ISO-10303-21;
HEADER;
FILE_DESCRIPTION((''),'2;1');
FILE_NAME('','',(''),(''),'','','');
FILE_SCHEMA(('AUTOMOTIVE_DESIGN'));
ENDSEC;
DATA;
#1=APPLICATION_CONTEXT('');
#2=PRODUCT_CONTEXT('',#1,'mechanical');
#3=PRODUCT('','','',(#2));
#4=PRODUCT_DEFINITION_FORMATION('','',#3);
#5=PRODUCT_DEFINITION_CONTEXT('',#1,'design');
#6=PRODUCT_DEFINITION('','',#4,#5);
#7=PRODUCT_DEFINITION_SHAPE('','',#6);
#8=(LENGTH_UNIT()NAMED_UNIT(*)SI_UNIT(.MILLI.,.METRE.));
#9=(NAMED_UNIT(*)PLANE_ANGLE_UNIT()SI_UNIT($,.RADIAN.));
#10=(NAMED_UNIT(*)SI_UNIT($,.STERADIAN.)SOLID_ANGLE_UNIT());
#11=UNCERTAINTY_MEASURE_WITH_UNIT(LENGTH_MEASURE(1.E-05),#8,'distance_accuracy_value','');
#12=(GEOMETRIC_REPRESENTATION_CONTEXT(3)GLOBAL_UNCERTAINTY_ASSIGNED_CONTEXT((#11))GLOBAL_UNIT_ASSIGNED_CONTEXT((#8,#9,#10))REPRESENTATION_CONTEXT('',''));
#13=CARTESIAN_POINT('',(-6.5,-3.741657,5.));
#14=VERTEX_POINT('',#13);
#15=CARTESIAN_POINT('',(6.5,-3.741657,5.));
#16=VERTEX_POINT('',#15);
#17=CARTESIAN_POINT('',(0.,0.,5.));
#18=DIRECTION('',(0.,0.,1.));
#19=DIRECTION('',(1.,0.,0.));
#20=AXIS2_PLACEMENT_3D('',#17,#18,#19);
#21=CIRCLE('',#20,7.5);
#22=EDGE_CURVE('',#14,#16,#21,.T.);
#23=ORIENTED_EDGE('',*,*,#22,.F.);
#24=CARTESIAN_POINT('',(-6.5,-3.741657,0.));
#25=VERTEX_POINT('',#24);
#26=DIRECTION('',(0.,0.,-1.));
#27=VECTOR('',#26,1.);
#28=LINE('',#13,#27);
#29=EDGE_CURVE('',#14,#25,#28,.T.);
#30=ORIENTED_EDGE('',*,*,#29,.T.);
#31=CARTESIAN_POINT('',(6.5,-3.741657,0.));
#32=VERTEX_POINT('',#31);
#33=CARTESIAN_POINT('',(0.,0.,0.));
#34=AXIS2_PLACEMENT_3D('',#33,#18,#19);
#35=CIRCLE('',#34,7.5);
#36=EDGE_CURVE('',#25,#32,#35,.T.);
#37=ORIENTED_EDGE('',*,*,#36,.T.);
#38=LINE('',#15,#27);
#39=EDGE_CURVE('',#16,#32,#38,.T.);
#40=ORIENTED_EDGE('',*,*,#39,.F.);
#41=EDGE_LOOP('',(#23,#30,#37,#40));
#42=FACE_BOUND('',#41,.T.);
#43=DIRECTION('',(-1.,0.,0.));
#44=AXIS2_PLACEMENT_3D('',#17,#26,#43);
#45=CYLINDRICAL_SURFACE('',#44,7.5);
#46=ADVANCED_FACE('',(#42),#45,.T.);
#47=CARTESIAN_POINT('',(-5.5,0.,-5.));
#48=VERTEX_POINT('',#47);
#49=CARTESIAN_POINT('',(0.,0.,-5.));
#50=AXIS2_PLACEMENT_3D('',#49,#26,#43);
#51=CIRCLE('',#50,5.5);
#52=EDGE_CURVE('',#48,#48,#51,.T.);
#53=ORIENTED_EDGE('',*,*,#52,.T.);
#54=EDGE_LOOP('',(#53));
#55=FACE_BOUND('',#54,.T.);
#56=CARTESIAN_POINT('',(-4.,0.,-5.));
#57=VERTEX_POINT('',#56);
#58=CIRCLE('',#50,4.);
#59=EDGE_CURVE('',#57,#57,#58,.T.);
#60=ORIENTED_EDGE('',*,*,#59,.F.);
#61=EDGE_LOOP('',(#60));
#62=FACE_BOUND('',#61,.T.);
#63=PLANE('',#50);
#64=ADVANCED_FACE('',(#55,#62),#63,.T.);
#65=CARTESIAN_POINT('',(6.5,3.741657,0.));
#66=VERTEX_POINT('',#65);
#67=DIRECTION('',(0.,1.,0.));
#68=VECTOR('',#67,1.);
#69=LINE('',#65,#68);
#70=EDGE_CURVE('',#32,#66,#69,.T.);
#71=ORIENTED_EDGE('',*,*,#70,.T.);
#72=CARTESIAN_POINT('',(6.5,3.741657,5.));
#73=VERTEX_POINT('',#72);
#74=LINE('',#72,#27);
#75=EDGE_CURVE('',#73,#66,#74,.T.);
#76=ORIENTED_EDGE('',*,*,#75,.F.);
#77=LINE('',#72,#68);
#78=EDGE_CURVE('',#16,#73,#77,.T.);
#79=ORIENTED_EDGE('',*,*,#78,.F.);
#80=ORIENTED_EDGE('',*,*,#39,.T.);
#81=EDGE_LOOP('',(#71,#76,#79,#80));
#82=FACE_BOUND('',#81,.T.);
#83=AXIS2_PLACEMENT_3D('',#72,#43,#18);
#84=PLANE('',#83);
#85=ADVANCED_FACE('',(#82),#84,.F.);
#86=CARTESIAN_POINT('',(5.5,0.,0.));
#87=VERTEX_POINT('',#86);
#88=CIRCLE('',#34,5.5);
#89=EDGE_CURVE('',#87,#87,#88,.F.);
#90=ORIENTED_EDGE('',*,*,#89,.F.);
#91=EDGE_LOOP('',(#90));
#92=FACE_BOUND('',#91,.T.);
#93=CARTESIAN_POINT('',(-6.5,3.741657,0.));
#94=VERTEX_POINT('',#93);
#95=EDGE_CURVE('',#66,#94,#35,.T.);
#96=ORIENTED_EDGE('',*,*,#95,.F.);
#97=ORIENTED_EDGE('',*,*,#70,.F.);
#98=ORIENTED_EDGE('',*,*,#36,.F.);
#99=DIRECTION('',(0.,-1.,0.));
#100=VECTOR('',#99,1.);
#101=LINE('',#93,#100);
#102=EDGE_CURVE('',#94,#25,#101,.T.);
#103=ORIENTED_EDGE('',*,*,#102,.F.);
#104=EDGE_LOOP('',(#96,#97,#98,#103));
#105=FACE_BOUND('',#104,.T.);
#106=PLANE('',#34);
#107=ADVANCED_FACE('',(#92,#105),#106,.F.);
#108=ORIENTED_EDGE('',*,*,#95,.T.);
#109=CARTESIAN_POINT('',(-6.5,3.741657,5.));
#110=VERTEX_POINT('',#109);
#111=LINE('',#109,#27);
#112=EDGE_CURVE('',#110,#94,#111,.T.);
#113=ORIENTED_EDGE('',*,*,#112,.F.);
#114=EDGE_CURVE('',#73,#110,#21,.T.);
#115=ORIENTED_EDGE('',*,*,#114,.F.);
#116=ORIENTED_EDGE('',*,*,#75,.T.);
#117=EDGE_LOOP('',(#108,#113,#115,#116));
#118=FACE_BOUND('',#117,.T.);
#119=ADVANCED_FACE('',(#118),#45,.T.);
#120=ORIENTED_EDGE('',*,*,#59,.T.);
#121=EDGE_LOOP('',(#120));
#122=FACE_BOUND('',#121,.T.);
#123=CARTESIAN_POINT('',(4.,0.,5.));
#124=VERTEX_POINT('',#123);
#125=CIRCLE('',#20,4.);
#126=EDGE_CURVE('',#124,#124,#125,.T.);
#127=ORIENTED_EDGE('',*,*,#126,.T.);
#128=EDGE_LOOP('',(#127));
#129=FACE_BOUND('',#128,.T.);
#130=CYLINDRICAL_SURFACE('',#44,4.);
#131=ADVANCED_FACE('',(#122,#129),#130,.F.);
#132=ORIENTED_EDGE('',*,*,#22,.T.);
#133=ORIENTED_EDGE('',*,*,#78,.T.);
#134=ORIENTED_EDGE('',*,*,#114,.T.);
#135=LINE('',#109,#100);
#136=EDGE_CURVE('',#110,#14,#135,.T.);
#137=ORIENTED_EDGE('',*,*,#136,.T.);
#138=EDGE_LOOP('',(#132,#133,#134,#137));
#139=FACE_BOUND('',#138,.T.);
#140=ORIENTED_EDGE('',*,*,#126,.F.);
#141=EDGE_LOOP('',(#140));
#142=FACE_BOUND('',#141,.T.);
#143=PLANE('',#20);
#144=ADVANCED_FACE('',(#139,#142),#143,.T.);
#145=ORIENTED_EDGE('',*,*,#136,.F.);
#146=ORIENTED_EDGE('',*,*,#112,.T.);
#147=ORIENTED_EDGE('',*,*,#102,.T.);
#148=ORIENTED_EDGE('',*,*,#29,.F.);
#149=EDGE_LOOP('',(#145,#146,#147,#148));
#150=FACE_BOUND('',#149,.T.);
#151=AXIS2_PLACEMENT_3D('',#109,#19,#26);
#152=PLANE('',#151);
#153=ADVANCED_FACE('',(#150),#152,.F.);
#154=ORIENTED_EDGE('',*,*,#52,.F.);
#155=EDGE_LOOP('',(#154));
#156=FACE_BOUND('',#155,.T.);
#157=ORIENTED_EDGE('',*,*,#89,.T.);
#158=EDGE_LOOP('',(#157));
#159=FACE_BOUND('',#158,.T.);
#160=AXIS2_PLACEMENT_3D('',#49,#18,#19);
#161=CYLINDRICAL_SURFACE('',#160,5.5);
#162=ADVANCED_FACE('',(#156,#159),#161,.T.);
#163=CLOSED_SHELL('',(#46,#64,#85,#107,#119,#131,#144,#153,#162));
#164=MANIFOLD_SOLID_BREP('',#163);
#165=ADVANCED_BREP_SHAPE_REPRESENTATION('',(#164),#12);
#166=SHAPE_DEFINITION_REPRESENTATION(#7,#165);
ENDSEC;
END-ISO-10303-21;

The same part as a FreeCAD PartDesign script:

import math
import FreeCAD as App
import Part
import Sketcher
from FreeCAD import Vector

doc = App.newDocument("Part")
body = doc.addObject("PartDesign::Body", "Body")

sketch1 = doc.addObject("Sketcher::SketchObject", "Sketch")
body.addObject(sketch1)
sketch1.AttachmentSupport = (doc.XY_Plane, [""])
sketch1.MapMode = "FlatFace"
sketch1.addGeometry(Part.LineSegment(Vector(-6.5, 3.7, 0), Vector(-6.5, -3.7, 0)), False)
sketch1.addGeometry(Part.ArcOfCircle(Part.Circle(Vector(0, 0, 0), Vector(0, 0, 1), 7.5), math.radians(-150), math.radians(-30)), False)
sketch1.addGeometry(Part.LineSegment(Vector(6.5, -3.7, 0), Vector(6.5, 3.7, 0)), False)
sketch1.addGeometry(Part.ArcOfCircle(Part.Circle(Vector(0, 0, 0), Vector(0, 0, 1), 7.5), math.radians(30), math.radians(150)), False)
sketch1.addGeometry(Part.Circle(Vector(0, 0, 0), Vector(0, 0, 1), 4), False)
sketch1.addConstraint(Sketcher.Constraint("Coincident", 0, 2, 1, 1))
sketch1.addConstraint(Sketcher.Constraint("Coincident", 1, 2, 2, 1))
sketch1.addConstraint(Sketcher.Constraint("Coincident", 2, 2, 3, 1))
sketch1.addConstraint(Sketcher.Constraint("Coincident", 3, 2, 0, 1))
sketch1.addConstraint(Sketcher.Constraint("Vertical", 0))
sketch1.addConstraint(Sketcher.Constraint("Vertical", 2))
sketch1.addConstraint(Sketcher.Constraint("Coincident", 1, 3, -1, 1))
sketch1.addConstraint(Sketcher.Constraint("Coincident", 3, 3, -1, 1))
sketch1.addConstraint(Sketcher.Constraint("Coincident", 4, 3, -1, 1))
sketch1.addConstraint(Sketcher.Constraint("Equal", 1, 3))
sketch1.addConstraint(Sketcher.Constraint("Horizontal", 0, 2, 1, 2))
sketch1.addConstraint(Sketcher.Constraint("Diameter", 4, 8.0))
sketch1.addConstraint(Sketcher.Constraint("Radius", 1, 7.5))
sketch1.addConstraint(Sketcher.Constraint("DistanceX", 0, 2, 1, 2, 13.0))
pad1 = doc.addObject("PartDesign::Pad", "Pad")
body.addObject(pad1)
pad1.Profile = sketch1
pad1.Length = 5

sketch2 = doc.addObject("Sketcher::SketchObject", "Sketch001")
body.addObject(sketch2)
sketch2.AttachmentSupport = (doc.XY_Plane, [""])
sketch2.MapMode = "FlatFace"
sketch2.addGeometry(Part.Circle(Vector(0, 0, 0), Vector(0, 0, 1), 5.5), False)
sketch2.addGeometry(Part.Circle(Vector(0, 0, 0), Vector(0, 0, 1), 4), False)
sketch2.addConstraint(Sketcher.Constraint("Coincident", 0, 3, -1, 1))
sketch2.addConstraint(Sketcher.Constraint("Coincident", 1, 3, -1, 1))
sketch2.addConstraint(Sketcher.Constraint("Diameter", 0, 11.0))
sketch2.addConstraint(Sketcher.Constraint("Diameter", 1, 8.0))
pad2 = doc.addObject("PartDesign::Pad", "Pad001")
body.addObject(pad2)
pad2.Profile = sketch2
pad2.Length = 5
pad2.Reversed = True

doc.recompute()
